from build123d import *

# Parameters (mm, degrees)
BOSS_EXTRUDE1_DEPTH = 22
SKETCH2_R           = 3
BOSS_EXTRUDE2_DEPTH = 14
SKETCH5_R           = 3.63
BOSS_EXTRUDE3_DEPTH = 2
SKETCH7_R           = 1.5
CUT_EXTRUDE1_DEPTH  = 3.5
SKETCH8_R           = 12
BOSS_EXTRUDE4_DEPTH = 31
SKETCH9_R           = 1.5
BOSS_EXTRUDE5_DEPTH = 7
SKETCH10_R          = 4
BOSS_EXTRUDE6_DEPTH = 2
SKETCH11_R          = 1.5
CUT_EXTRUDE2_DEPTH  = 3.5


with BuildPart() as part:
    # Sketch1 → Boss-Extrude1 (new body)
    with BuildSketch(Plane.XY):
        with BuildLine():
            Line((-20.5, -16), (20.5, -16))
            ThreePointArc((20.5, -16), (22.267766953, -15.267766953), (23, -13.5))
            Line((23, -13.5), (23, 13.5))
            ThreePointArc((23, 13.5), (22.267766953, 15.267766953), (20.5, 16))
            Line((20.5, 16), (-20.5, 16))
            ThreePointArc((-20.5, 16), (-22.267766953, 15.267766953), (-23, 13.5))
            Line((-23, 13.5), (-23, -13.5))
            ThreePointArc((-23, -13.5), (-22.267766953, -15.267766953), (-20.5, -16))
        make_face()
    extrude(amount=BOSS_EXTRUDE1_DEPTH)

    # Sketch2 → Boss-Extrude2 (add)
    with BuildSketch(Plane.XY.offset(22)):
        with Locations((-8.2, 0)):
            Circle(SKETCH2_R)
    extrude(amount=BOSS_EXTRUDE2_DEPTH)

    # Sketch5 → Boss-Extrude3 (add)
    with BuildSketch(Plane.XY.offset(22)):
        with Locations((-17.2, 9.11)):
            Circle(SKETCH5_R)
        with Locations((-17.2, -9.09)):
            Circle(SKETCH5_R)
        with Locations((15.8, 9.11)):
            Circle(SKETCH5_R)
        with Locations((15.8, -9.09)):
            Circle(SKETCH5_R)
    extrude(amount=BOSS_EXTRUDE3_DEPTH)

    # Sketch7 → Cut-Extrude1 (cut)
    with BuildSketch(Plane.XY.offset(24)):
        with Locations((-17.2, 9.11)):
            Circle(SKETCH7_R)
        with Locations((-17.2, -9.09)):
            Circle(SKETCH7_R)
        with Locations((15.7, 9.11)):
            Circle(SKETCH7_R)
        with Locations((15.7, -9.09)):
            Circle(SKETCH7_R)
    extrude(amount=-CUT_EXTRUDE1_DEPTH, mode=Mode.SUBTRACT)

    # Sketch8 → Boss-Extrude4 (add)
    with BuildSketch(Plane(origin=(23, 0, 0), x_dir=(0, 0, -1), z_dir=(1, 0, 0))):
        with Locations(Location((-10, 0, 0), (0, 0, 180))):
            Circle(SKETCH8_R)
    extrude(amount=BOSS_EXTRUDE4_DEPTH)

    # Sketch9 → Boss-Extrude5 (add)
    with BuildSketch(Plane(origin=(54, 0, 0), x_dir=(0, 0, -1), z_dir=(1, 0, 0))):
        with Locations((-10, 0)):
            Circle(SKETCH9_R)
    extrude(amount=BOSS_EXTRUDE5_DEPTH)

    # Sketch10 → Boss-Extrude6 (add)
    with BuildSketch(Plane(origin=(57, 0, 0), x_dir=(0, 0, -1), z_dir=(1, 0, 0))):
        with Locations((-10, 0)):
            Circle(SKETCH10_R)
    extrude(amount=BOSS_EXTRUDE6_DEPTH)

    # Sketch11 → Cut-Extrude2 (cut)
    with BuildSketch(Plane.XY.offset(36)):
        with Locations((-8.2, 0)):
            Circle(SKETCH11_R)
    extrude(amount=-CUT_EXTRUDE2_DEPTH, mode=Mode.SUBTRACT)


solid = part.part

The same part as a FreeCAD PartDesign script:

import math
import FreeCAD as App
import Part
import Sketcher
from FreeCAD import Vector

doc = App.newDocument("Part")
params = doc.addObject("Spreadsheet::Sheet", "Params")
for row, (alias, value) in enumerate([
    ("sketch1_radius", "2.5 mm"),
    ("sketch1_width", "41 mm"),
    ("sketch1_height", "27 mm"),
    ("pad1_length", "22 mm"),
    ("sketch2_diameter", "6 mm"),
    ("pad2_length", "14 mm"),
    ("sketch3_diameter", "7.26 mm"),
    ("pad3_length", "2 mm"),
    ("sketch4_diameter", "3 mm"),
    ("pocket1_length", "3.5 mm"),
    ("sketch5_diameter", "24 mm"),
    ("pad4_length", "31 mm"),
    ("sketch6_diameter", "3 mm"),
    ("pad5_length", "7 mm"),
    ("sketch7_diameter", "8 mm"),
    ("pad6_length", "2 mm"),
    ("sketch8_diameter", "3 mm"),
    ("pocket2_length", "3.5 mm"),
], start=1):
    params.set(f"A{row}", alias)
    params.set(f"B{row}", "=" + value)
    params.setAlias(f"B{row}", alias)

body = doc.addObject("PartDesign::Body", "Body")

sketch1 = body.newObject("Sketcher::SketchObject", "Sketch")
sketch1.AttachmentSupport = (doc.getObject("XY_Plane"), [""])
sketch1.MapMode = "FlatFace"
sketch1.addGeometry([
    Part.LineSegment(Vector(-20.5, -16, 0), Vector(20.5, -16, 0)),
    Part.ArcOfCircle(Part.Circle(Vector(20.5, -13.5, 0), Vector(0, 0, 1), 2.5), math.radians(-90), math.radians(0)),
    Part.LineSegment(Vector(23, -13.5, 0), Vector(23, 13.5, 0)),
    Part.ArcOfCircle(Part.Circle(Vector(20.5, 13.5, 0), Vector(0, 0, 1), 2.5), math.radians(0), math.radians(90)),
    Part.LineSegment(Vector(20.5, 16, 0), Vector(-20.5, 16, 0)),
    Part.ArcOfCircle(Part.Circle(Vector(-20.5, 13.5, 0), Vector(0, 0, 1), 2.5), math.radians(90), math.radians(180)),
    Part.LineSegment(Vector(-23, 13.5, 0), Vector(-23, -13.5, 0)),
    Part.ArcOfCircle(Part.Circle(Vector(-20.5, -13.5, 0), Vector(0, 0, 1), 2.5), math.radians(180), math.radians(270)),
], False)
sketch1.addConstraint([
    Sketcher.Constraint("Tangent", 0, 2, 1, 1),
    Sketcher.Constraint("Tangent", 1, 2, 2, 1),
    Sketcher.Constraint("Tangent", 2, 2, 3, 1),
    Sketcher.Constraint("Tangent", 3, 2, 4, 1),
    Sketcher.Constraint("Tangent", 4, 2, 5, 1),
    Sketcher.Constraint("Tangent", 5, 2, 6, 1),
    Sketcher.Constraint("Tangent", 6, 2, 7, 1),
    Sketcher.Constraint("Tangent", 7, 2, 0, 1),
    Sketcher.Constraint("Horizontal", 0),
    Sketcher.Constraint("Vertical", 2),
    Sketcher.Constraint("Horizontal", 4),
    Sketcher.Constraint("Vertical", 6),
    Sketcher.Constraint("Equal", 1, 3),
    Sketcher.Constraint("Equal", 3, 5),
    Sketcher.Constraint("Equal", 5, 7),
    Sketcher.Constraint("Symmetric", 1, 3, 5, 3, -1, 1),
    Sketcher.Constraint("Radius", 1, 2.5),
    Sketcher.Constraint("DistanceX", 0, 1, 0, 2, 41.0),
    Sketcher.Constraint("DistanceY", 2, 1, 2, 2, 27.0),
])
sketch1.setExpression("Constraints[16]", "Params.sketch1_radius")
sketch1.setExpression("Constraints[17]", "Params.sketch1_width")
sketch1.setExpression("Constraints[18]", "Params.sketch1_height")
pad1 = body.newObject("PartDesign::Pad", "Pad")
pad1.Profile = sketch1
pad1.setExpression("Length", "Params.pad1_length")

sketch2 = body.newObject("Sketcher::SketchObject", "Sketch001")
sketch2.AttachmentSupport = (doc.getObject("XY_Plane"), [""])
sketch2.MapMode = "FlatFace"
sketch2.AttachmentOffset = App.Placement(Vector(0, 0, 22), App.Rotation())
sketch2.addGeometry(Part.Circle(Vector(-8.2, 0, 0), Vector(0, 0, 1), 3), False)
sketch2.addConstraint([
    Sketcher.Constraint("PointOnObject", 0, 3, -1),
    Sketcher.Constraint("Diameter", 0, 6.0),
    Sketcher.Constraint("DistanceX", 0, 3, -1, 1, 8.2),
])
sketch2.setExpression("Constraints[1]", "Params.sketch2_diameter")
pad2 = body.newObject("PartDesign::Pad", "Pad001")
pad2.Profile = sketch2
pad2.setExpression("Length", "Params.pad2_length")

sketch3 = body.newObject("Sketcher::SketchObject", "Sketch002")
sketch3.AttachmentSupport = (doc.getObject("XY_Plane"), [""])
sketch3.MapMode = "FlatFace"
sketch3.AttachmentOffset = App.Placement(Vector(0, 0, 22), App.Rotation())
sketch3.addGeometry([
    Part.Circle(Vector(-17.2, 9.11, 0), Vector(0, 0, 1), 3.63),
    Part.Circle(Vector(-17.2, -9.09, 0), Vector(0, 0, 1), 3.63),
    Part.Circle(Vector(15.8, 9.11, 0), Vector(0, 0, 1), 3.63),
    Part.Circle(Vector(15.8, -9.09, 0), Vector(0, 0, 1), 3.63),
], False)
sketch3.addConstraint([
    Sketcher.Constraint("Equal", 0, 1),
    Sketcher.Constraint("Equal", 1, 2),
    Sketcher.Constraint("Equal", 2, 3),
    Sketcher.Constraint("Horizontal", 0, 3, 2, 3),
    Sketcher.Constraint("Horizontal", 1, 3, 3, 3),
    Sketcher.Constraint("Vertical", 0, 3, 1, 3),
    Sketcher.Constraint("Vertical", 2, 3, 3, 3),
    Sketcher.Constraint("Diameter", 0, 7.26),
    Sketcher.Constraint("DistanceX", 0, 3, 2, 3, 33.0),
    Sketcher.Constraint("DistanceX", 0, 3, -1, 1, 17.2),
    Sketcher.Constraint("DistanceY", 1, 3, 0, 3, 18.2),
    Sketcher.Constraint("DistanceY", -1, 1, 0, 3, 9.11),
])
sketch3.setExpression("Constraints[7]", "Params.sketch3_diameter")
pad3 = body.newObject("PartDesign::Pad", "Pad002")
pad3.Profile = sketch3
pad3.setExpression("Length", "Params.pad3_length")

sketch4 = body.newObject("Sketcher::SketchObject", "Sketch003")
sketch4.AttachmentSupport = (doc.getObject("XY_Plane"), [""])
sketch4.MapMode = "FlatFace"
sketch4.AttachmentOffset = App.Placement(Vector(0, 0, 24), App.Rotation())
sketch4.addGeometry([
    Part.Circle(Vector(-17.2, 9.11, 0), Vector(0, 0, 1), 1.5),
    Part.Circle(Vector(-17.2, -9.09, 0), Vector(0, 0, 1), 1.5),
    Part.Circle(Vector(15.7, 9.11, 0), Vector(0, 0, 1), 1.5),
    Part.Circle(Vector(15.7, -9.09, 0), Vector(0, 0, 1), 1.5),
], False)
sketch4.addConstraint([
    Sketcher.Constraint("Equal", 0, 1),
    Sketcher.Constraint("Equal", 1, 2),
    Sketcher.Constraint("Equal", 2, 3),
    Sketcher.Constraint("Horizontal", 0, 3, 2, 3),
    Sketcher.Constraint("Horizontal", 1, 3, 3, 3),
    Sketcher.Constraint("Vertical", 0, 3, 1, 3),
    Sketcher.Constraint("Vertical", 2, 3, 3, 3),
    Sketcher.Constraint("Diameter", 0, 3.0),
    Sketcher.Constraint("DistanceX", 0, 3, -1, 1, 17.2),
    Sketcher.Constraint("DistanceX", -1, 1, 2, 3, 15.7),
    Sketcher.Constraint("DistanceY", 1, 3, 0, 3, 18.2),
    Sketcher.Constraint("DistanceY", -1, 1, 0, 3, 9.11),
])
sketch4.setExpression("Constraints[7]", "Params.sketch4_diameter")
pocket1 = body.newObject("PartDesign::Pocket", "Pocket")
pocket1.Profile = sketch4
pocket1.setExpression("Length", "Params.pocket1_length")

sketch5 = body.newObject("Sketcher::SketchObject", "Sketch004")
sketch5.AttachmentSupport = (doc.getObject("YZ_Plane"), [""])
sketch5.MapMode = "FlatFace"
sketch5.AttachmentOffset = App.Placement(Vector(0, 0, 23), App.Rotation())
sketch5.addGeometry(Part.Circle(Vector(0, 10, 0), Vector(0, 0, 1), 12), False)
sketch5.addConstraint([
    Sketcher.Constraint("PointOnObject", 0, 3, -2),
    Sketcher.Constraint("Diameter", 0, 24.0),
    Sketcher.Constraint("DistanceY", -1, 1, 0, 3, 10.0),
])
sketch5.setExpression("Constraints[1]", "Params.sketch5_diameter")
pad4 = body.newObject("PartDesign::Pad", "Pad003")
pad4.Profile = sketch5
pad4.setExpression("Length", "Params.pad4_length")

sketch6 = body.newObject("Sketcher::SketchObject", "Sketch005")
sketch6.AttachmentSupport = (doc.getObject("YZ_Plane"), [""])
sketch6.MapMode = "FlatFace"
sketch6.AttachmentOffset = App.Placement(Vector(0, 0, 54), App.Rotation())
sketch6.addGeometry(Part.Circle(Vector(0, 10, 0), Vector(0, 0, 1), 1.5), False)
sketch6.addConstraint([
    Sketcher.Constraint("PointOnObject", 0, 3, -2),
    Sketcher.Constraint("Diameter", 0, 3.0),
    Sketcher.Constraint("DistanceY", -1, 1, 0, 3, 10.0),
])
sketch6.setExpression("Constraints[1]", "Params.sketch6_diameter")
pad5 = body.newObject("PartDesign::Pad", "Pad004")
pad5.Profile = sketch6
pad5.setExpression("Length", "Params.pad5_length")

sketch7 = body.newObject("Sketcher::SketchObject", "Sketch006")
sketch7.AttachmentSupport = (doc.getObject("YZ_Plane"), [""])
sketch7.MapMode = "FlatFace"
sketch7.AttachmentOffset = App.Placement(Vector(0, 0, 57), App.Rotation())
sketch7.addGeometry(Part.Circle(Vector(0, 10, 0), Vector(0, 0, 1), 4), False)
sketch7.addConstraint([
    Sketcher.Constraint("PointOnObject", 0, 3, -2),
    Sketcher.Constraint("Diameter", 0, 8.0),
    Sketcher.Constraint("DistanceY", -1, 1, 0, 3, 10.0),
])
sketch7.setExpression("Constraints[1]", "Params.sketch7_diameter")
pad6 = body.newObject("PartDesign::Pad", "Pad005")
pad6.Profile = sketch7
pad6.setExpression("Length", "Params.pad6_length")

sketch8 = body.newObject("Sketcher::SketchObject", "Sketch007")
sketch8.AttachmentSupport = (doc.getObject("XY_Plane"), [""])
sketch8.MapMode = "FlatFace"
sketch8.AttachmentOffset = App.Placement(Vector(0, 0, 36), App.Rotation())
sketch8.addGeometry(Part.Circle(Vector(-8.2, 0, 0), Vector(0, 0, 1), 1.5), False)
sketch8.addConstraint([
    Sketcher.Constraint("PointOnObject", 0, 3, -1),
    Sketcher.Constraint("Diameter", 0, 3.0),
    Sketcher.Constraint("DistanceX", 0, 3, -1, 1, 8.2),
])
sketch8.setExpression("Constraints[1]", "Params.sketch8_diameter")
pocket2 = body.newObject("PartDesign::Pocket", "Pocket001")
pocket2.Profile = sketch8
pocket2.setExpression("Length", "Params.pocket2_length")

doc.recompute()
